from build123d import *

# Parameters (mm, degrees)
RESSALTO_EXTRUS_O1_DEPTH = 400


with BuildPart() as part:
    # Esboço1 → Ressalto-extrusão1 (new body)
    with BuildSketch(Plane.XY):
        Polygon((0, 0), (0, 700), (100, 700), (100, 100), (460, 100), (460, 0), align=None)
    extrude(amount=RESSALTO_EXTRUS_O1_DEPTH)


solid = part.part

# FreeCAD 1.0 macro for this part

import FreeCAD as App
import Part
import Sketcher
from FreeCAD import Vector


def add_polygon(sketch, points):
    """Adds a closed chain of lines whose ends are joined by coincident constraints."""
    first, n = sketch.GeometryCount, len(points)
    for a, b in zip(points, points[1:] + points[:1]):
        sketch.addGeometry(Part.LineSegment(App.Vector(*a, 0), App.Vector(*b, 0)), False)
    for i in range(n):
        sketch.addConstraint(Sketcher.Constraint("Coincident", first + i, 2, first + (i + 1) % n, 1))

doc = App.newDocument("Part")
body = doc.addObject("PartDesign::Body", "Body")

sketch1 = doc.addObject("Sketcher::SketchObject", "Sketch")
body.addObject(sketch1)
sketch1.AttachmentSupport = (doc.XY_Plane, [""])
sketch1.MapMode = "FlatFace"
add_polygon(sketch1, [(0, 700), (0, 0), (460, 0), (460, 100), (100, 100), (100, 700)])
sketch1.addConstraint([
    Sketcher.Constraint("Vertical", 0),
    Sketcher.Constraint("Horizontal", 1),
    Sketcher.Constraint("Vertical", 2),
    Sketcher.Constraint("Horizontal", 3),
    Sketcher.Constraint("Vertical", 4),
    Sketcher.Constraint("Horizontal", 5),
    Sketcher.Constraint("Coincident", 0, 2, -1, 1),
    Sketcher.Constraint("Equal", 5, 2),
    Sketcher.Constraint("DistanceX", 1, 1, 1, 2, 460.0),
    Sketcher.Constraint("DistanceX", 3, 2, 3, 1, 360.0),
    Sketcher.Constraint("DistanceY", 0, 2, 0, 1, 700.0),
])
pad1 = doc.addObject("PartDesign::Pad", "Pad")
body.addObject(pad1)
pad1.Profile = sketch1
pad1.Length = 400

doc.recompute()
